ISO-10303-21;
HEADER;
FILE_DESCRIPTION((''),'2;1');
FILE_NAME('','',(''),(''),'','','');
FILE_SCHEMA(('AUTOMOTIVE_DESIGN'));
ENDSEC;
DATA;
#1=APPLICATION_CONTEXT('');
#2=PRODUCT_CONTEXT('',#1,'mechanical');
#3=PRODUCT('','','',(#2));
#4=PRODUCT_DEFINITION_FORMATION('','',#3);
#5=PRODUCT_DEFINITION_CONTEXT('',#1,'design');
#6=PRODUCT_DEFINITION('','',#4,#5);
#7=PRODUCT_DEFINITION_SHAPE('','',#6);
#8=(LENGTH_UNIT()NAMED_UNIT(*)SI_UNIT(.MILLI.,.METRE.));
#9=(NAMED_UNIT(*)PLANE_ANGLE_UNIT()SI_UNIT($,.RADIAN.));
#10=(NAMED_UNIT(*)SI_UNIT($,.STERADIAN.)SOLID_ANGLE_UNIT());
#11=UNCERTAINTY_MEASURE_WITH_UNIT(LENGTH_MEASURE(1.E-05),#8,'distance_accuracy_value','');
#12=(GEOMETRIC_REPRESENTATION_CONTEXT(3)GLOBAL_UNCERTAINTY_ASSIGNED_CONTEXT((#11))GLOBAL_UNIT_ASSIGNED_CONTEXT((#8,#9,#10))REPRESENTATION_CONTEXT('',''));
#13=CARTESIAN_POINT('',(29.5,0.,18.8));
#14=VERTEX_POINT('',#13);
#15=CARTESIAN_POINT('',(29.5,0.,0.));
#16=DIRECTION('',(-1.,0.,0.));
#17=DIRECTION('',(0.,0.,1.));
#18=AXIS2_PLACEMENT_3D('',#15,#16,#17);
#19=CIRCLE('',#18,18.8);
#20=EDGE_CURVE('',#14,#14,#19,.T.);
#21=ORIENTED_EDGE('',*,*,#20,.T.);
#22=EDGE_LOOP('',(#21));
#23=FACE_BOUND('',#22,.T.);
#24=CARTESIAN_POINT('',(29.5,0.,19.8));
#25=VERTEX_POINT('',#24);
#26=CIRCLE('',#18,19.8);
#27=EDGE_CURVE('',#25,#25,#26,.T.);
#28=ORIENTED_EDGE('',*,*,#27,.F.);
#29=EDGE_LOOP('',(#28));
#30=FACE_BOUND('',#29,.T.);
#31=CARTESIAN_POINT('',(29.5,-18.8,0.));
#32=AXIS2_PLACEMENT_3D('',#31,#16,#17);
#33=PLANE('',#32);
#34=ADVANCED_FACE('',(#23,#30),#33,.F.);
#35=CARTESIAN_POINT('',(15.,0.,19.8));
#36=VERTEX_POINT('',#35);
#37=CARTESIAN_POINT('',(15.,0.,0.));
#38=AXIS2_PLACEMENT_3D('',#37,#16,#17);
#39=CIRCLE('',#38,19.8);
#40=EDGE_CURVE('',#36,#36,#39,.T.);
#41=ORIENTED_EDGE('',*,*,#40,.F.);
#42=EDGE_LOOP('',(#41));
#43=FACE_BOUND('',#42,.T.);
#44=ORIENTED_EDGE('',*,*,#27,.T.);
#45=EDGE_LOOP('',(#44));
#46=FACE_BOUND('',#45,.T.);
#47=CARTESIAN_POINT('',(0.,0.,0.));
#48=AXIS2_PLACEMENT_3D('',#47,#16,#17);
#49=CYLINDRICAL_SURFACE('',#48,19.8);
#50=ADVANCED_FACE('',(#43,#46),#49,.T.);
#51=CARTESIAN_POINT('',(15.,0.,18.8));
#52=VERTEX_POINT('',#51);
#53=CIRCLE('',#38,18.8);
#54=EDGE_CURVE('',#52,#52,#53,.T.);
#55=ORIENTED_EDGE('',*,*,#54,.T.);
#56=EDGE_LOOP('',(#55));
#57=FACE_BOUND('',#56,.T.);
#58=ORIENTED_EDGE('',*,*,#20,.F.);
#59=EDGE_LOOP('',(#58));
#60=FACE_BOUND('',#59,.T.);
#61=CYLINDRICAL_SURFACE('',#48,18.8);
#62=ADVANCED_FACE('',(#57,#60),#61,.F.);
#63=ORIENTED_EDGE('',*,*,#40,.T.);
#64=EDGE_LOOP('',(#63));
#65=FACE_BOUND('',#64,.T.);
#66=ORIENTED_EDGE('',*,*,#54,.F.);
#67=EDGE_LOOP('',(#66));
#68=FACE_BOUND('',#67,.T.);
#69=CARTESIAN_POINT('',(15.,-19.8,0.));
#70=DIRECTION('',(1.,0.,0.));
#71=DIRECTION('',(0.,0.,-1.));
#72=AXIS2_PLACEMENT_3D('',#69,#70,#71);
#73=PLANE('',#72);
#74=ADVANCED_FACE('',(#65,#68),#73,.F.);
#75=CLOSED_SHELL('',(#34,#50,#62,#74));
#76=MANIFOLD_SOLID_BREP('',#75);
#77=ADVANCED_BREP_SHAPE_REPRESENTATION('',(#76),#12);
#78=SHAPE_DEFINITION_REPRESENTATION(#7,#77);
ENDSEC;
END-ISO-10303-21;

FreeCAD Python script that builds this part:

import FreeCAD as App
import Part
import Sketcher
from FreeCAD import Vector

doc = App.newDocument("Part")
body = doc.addObject("PartDesign::Body", "Body")

# Sketch on XY plane
sketch1 = doc.addObject("Sketcher::SketchObject", "Sketch")
body.addObject(sketch1)
sketch1.AttachmentSupport = (doc.XY_Plane, [""])
sketch1.MapMode = "FlatFace"
sketch1.addGeometry([
    Part.LineSegment(Vector(15, -18.8, 0), Vector(15, -19.8, 0)),
    Part.LineSegment(Vector(15, -19.8, 0), Vector(29.5, -19.8, 0)),
    Part.LineSegment(Vector(29.5, -19.8, 0), Vector(29.5, -18.8, 0)),
    Part.LineSegment(Vector(29.5, -18.8, 0), Vector(15, -18.8, 0)),
], False)
sketch1.addConstraint([
    Sketcher.Constraint("Coincident", 0, 2, 1, 1),
    Sketcher.Constraint("Coincident", 1, 2, 2, 1),
    Sketcher.Constraint("Coincident", 2, 2, 3, 1),
    Sketcher.Constraint("Coincident", 3, 2, 0, 1),
    Sketcher.Constraint("Vertical", 0),
    Sketcher.Constraint("Horizontal", 1),
    Sketcher.Constraint("Vertical", 2),
    Sketcher.Constraint("Horizontal", 3),
    Sketcher.Constraint("DistanceY", 0, 2, 0, 1, 1.0),
    Sketcher.Constraint("DistanceX", 1, 1, 1, 2, 14.5),
    Sketcher.Constraint("DistanceX", -1, 1, 0, 2, 15.0),
    Sketcher.Constraint("DistanceY", 0, 2, -1, 1, 19.8),
])
revolution = doc.addObject("PartDesign::Revolution", "Revolution")
body.addObject(revolution)
revolution.Profile = sketch1
revolution.ReferenceAxis = (sketch1, ["H_Axis"])
revolution.Angle = 360

doc.recompute()
